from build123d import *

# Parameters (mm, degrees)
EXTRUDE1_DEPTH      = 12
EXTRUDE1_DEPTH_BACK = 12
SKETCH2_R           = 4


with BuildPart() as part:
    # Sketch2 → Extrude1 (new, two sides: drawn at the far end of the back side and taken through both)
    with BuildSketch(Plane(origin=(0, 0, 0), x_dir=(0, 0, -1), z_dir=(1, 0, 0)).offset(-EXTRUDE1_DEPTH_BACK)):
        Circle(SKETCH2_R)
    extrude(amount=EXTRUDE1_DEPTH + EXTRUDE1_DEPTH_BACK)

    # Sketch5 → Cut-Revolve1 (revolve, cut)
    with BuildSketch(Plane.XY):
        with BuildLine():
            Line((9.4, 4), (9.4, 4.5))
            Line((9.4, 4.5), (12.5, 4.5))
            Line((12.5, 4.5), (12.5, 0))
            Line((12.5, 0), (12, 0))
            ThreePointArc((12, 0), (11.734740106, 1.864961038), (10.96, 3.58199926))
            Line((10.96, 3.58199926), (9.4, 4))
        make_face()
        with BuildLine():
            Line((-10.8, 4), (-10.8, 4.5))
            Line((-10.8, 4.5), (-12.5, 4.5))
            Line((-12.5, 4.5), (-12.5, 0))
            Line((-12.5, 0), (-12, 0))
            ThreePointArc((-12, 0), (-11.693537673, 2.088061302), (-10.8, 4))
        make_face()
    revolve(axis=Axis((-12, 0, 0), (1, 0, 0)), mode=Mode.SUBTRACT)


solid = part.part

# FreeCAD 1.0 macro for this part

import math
import FreeCAD as App
import Part
import Sketcher

V = App.Vector
Q = App.Units.Quantity

doc = App.newDocument("Part")
body = doc.addObject("PartDesign::Body", "Body")

# Sketch on YZ plane
sketch1 = body.newObject("Sketcher::SketchObject", "Sketch")
sketch1.AttachmentSupport = (doc.getObject("YZ_Plane"), [""])
sketch1.MapMode = "FlatFace"
sketch1.addGeometry(Part.Circle(V(0, 0, 0), V(0, 0, 1), 4), False)
sketch1.addConstraint([
    Sketcher.Constraint("Coincident", 0, 3, -1, 1),
    Sketcher.Constraint("Diameter", 0, 8.0),
])
pad1 = body.newObject("PartDesign::Pad", "Pad")
pad1.Profile = sketch1
pad1.Type = "TwoLengths"
pad1.Length = 12
pad1.Length2 = 12

# Sketch on XY plane
sketch2 = body.newObject("Sketcher::SketchObject", "Sketch001")
sketch2.AttachmentSupport = (doc.getObject("XY_Plane"), [""])
sketch2.MapMode = "FlatFace"
sketch2.addGeometry([
    Part.LineSegment(V(9.4, 4.5, 0), V(9.4, 4, 0)),  # 0
    Part.LineSegment(V(9.4, 4, 0), V(11, 3.6, 0)),  # 1
    Part.ArcOfCircle(Part.Circle(V(5.3, 0, 0), V(0, 0, 1), 6.7), math.radians(0), math.radians(32)),  # 2
    Part.LineSegment(V(12, 0, 0), V(12.5, 0, 0)),  # 3
    Part.LineSegment(V(12.5, 0, 0), V(12.5, 4.5, 0)),  # 4
    Part.LineSegment(V(12.5, 4.5, 0), V(9.4, 4.5, 0)),  # 5
    Part.LineSegment(V(-10.8, 4, 0), V(-10.8, 4.5, 0)),  # 6
    Part.LineSegment(V(-10.8, 4.5, 0), V(-12.5, 4.5, 0)),  # 7
    Part.LineSegment(V(-12.5, 4.5, 0), V(-12.5, 0, 0)),  # 8
    Part.LineSegment(V(-12.5, 0, 0), V(-12, 0, 0)),  # 9
    Part.ArcOfCircle(Part.Circle(V(-4.7, 0, 0), V(0, 0, 1), 7.3), math.radians(147), math.radians(180)),  # 10
], False)
sketch2.addConstraint([
    Sketcher.Constraint("Coincident", 0, 2, 1, 1),
    Sketcher.Constraint("Coincident", 1, 2, 2, 2),
    Sketcher.Constraint("Coincident", 2, 1, 3, 1),
    Sketcher.Constraint("Coincident", 3, 2, 4, 1),
    Sketcher.Constraint("Coincident", 4, 2, 5, 1),
    Sketcher.Constraint("Coincident", 5, 2, 0, 1),
    Sketcher.Constraint("Coincident", 6, 2, 7, 1),
    Sketcher.Constraint("Coincident", 7, 2, 8, 1),
    Sketcher.Constraint("Coincident", 8, 2, 9, 1),
    Sketcher.Constraint("Coincident", 9, 2, 10, 2),
    Sketcher.Constraint("Coincident", 10, 1, 6, 1),
    Sketcher.Constraint("Vertical", 0),
    Sketcher.Constraint("Horizontal", 3),
    Sketcher.Constraint("Vertical", 4),
    Sketcher.Constraint("Horizontal", 5),
    Sketcher.Constraint("Vertical", 6),
    Sketcher.Constraint("Horizontal", 7),
    Sketcher.Constraint("Vertical", 8),
    Sketcher.Constraint("Horizontal", 9),
    Sketcher.Constraint("Symmetric", 3, 2, 8, 2, -1, 1),
    Sketcher.Constraint("Symmetric", 2, 1, 9, 2, -2),
    Sketcher.Constraint("PointOnObject", 2, 3, -1),
    Sketcher.Constraint("PointOnObject", 10, 3, -1),
    Sketcher.Constraint("Horizontal", 5, 2, 6, 2),
    Sketcher.Constraint("Horizontal", 0, 2, 10, 1),
    Sketcher.Constraint("Equal", 9, 0),
    Sketcher.Constraint("Angle", 1, Q("-15 deg")),
    Sketcher.Constraint("DistanceX", 3, 1, 3, 2, 0.5),
    Sketcher.Constraint("DistanceX", 5, 2, 5, 1, 3.1),
    Sketcher.Constraint("DistanceX", 7, 2, 7, 1, 1.7),
    Sketcher.Constraint("DistanceY", 4, 1, 4, 2, 4.5),
    Sketcher.Constraint("DistanceX", -1, 1, 2, 1, 12.0),
    Sketcher.Constraint("DistanceX", -1, 1, 1, 2, 10.96),
])
groove = body.newObject("PartDesign::Groove", "Groove")
groove.Profile = sketch2
groove.ReferenceAxis = (sketch2, ["H_Axis"])
groove.Angle = 360

doc.recompute()
